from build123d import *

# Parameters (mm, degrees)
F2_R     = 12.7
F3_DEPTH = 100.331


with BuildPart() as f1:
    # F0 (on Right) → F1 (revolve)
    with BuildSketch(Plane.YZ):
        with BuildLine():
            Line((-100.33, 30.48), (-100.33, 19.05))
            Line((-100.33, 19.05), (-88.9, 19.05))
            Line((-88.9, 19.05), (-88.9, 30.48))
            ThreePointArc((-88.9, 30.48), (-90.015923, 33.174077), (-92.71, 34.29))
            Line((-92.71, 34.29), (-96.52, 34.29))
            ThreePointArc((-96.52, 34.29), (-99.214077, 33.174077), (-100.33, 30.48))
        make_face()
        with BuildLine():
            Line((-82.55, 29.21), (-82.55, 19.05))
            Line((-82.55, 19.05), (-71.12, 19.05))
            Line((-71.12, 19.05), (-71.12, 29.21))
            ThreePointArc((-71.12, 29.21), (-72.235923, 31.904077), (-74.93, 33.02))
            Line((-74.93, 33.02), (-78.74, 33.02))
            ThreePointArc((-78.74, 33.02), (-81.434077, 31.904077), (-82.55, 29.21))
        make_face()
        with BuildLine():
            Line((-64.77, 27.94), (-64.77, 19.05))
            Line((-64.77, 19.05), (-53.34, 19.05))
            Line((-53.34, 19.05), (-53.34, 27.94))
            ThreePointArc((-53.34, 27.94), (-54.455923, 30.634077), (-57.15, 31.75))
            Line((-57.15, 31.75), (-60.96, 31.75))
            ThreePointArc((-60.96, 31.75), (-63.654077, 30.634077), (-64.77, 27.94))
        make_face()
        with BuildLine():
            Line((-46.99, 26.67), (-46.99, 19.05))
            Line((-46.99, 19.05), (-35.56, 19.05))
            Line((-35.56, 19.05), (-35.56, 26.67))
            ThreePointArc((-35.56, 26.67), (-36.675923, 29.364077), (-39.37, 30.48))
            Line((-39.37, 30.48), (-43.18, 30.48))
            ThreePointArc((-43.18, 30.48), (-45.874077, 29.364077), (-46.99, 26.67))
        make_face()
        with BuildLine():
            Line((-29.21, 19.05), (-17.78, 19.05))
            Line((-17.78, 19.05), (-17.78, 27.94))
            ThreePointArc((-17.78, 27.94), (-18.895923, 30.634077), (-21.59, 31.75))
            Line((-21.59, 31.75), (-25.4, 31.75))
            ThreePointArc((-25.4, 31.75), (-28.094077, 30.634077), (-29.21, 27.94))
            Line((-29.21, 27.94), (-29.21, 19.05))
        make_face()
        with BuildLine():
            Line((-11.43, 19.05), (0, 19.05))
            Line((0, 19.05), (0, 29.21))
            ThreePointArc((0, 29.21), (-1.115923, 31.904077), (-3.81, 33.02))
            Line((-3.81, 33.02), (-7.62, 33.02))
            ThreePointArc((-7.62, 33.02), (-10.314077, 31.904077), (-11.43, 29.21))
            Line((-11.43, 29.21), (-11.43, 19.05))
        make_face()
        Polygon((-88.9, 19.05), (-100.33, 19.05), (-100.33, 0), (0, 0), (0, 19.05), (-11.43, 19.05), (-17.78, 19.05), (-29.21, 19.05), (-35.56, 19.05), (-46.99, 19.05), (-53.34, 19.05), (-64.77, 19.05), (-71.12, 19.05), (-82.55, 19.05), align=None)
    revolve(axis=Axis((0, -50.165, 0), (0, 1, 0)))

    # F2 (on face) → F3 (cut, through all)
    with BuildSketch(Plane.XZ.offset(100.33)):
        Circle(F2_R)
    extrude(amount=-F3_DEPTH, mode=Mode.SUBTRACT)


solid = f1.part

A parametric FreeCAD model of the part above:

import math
import FreeCAD as App
import Part
import Sketcher
Q = App.Units.Quantity

doc = App.newDocument("Part")
body = doc.addObject("PartDesign::Body", "Body")

sketch1 = body.newObject("Sketcher::SketchObject", "Sketch")
sketch1.AttachmentSupport = (doc.getObject("YZ_Plane"), [""])
sketch1.MapMode = "FlatFace"
sketch1.addGeometry([
    Part.LineSegment(App.Vector(-100.3, 30.5, 0), App.Vector(-100.3, 0, 0)),
    Part.LineSegment(App.Vector(-100.3, 0, 0), App.Vector(0, 0, 0)),
    Part.LineSegment(App.Vector(0, 0, 0), App.Vector(0, 29.2, 0)),
    Part.ArcOfCircle(Part.Circle(App.Vector(-3.8, 29.2, 0), App.Vector(0, 0, 1), 3.8), math.radians(0), math.radians(90)),
    Part.LineSegment(App.Vector(-3.8, 33, 0), App.Vector(-7.6, 33, 0)),
    Part.ArcOfCircle(Part.Circle(App.Vector(-7.6, 29.2, 0), App.Vector(0, 0, 1), 3.8), math.radians(90), math.radians(180)),
    Part.LineSegment(App.Vector(-11.4, 29.2, 0), App.Vector(-11.4, 19.1, 0)),
    Part.LineSegment(App.Vector(-11.4, 19.1, 0), App.Vector(-17.8, 19.1, 0)),
    Part.LineSegment(App.Vector(-17.8, 19.1, 0), App.Vector(-17.8, 27.9, 0)),
    Part.ArcOfCircle(Part.Circle(App.Vector(-21.6, 27.9, 0), App.Vector(0, 0, 1), 3.8), math.radians(0), math.radians(90)),
    Part.LineSegment(App.Vector(-21.6, 31.8, 0), App.Vector(-25.4, 31.8, 0)),
    Part.ArcOfCircle(Part.Circle(App.Vector(-25.4, 27.9, 0), App.Vector(0, 0, 1), 3.8), math.radians(90), math.radians(180)),
    Part.LineSegment(App.Vector(-29.2, 27.9, 0), App.Vector(-29.2, 19.1, 0)),
    Part.LineSegment(App.Vector(-29.2, 19.1, 0), App.Vector(-35.6, 19.1, 0)),
    Part.LineSegment(App.Vector(-35.6, 19.1, 0), App.Vector(-35.6, 26.7, 0)),
    Part.ArcOfCircle(Part.Circle(App.Vector(-39.4, 26.7, 0), App.Vector(0, 0, 1), 3.8), math.radians(0), math.radians(90)),
    Part.LineSegment(App.Vector(-39.4, 30.5, 0), App.Vector(-43.2, 30.5, 0)),
    Part.ArcOfCircle(Part.Circle(App.Vector(-43.2, 26.7, 0), App.Vector(0, 0, 1), 3.8), math.radians(90), math.radians(180)),
    Part.LineSegment(App.Vector(-47, 26.7, 0), App.Vector(-47, 19.1, 0)),
    Part.LineSegment(App.Vector(-47, 19.1, 0), App.Vector(-53.3, 19.1, 0)),
    Part.LineSegment(App.Vector(-53.3, 19.1, 0), App.Vector(-53.3, 27.9, 0)),
    Part.ArcOfCircle(Part.Circle(App.Vector(-57.1, 27.9, 0), App.Vector(0, 0, 1), 3.8), math.radians(0), math.radians(90)),
    Part.LineSegment(App.Vector(-57.1, 31.8, 0), App.Vector(-61, 31.8, 0)),
    Part.ArcOfCircle(Part.Circle(App.Vector(-61, 27.9, 0), App.Vector(0, 0, 1), 3.8), math.radians(90), math.radians(180)),
    Part.LineSegment(App.Vector(-64.8, 27.9, 0), App.Vector(-64.8, 19.1, 0)),
    Part.LineSegment(App.Vector(-64.8, 19.1, 0), App.Vector(-71.1, 19.1, 0)),
    Part.LineSegment(App.Vector(-71.1, 19.1, 0), App.Vector(-71.1, 29.2, 0)),
    Part.ArcOfCircle(Part.Circle(App.Vector(-74.9, 29.2, 0), App.Vector(0, 0, 1), 3.8), math.radians(0), math.radians(90)),
    Part.LineSegment(App.Vector(-74.9, 33, 0), App.Vector(-78.7, 33, 0)),
    Part.ArcOfCircle(Part.Circle(App.Vector(-78.7, 29.2, 0), App.Vector(0, 0, 1), 3.8), math.radians(90), math.radians(180)),
    Part.LineSegment(App.Vector(-82.5, 29.2, 0), App.Vector(-82.5, 19.1, 0)),
    Part.LineSegment(App.Vector(-82.5, 19.1, 0), App.Vector(-88.9, 19.1, 0)),
    Part.LineSegment(App.Vector(-88.9, 19.1, 0), App.Vector(-88.9, 30.5, 0)),
    Part.ArcOfCircle(Part.Circle(App.Vector(-92.7, 30.5, 0), App.Vector(0, 0, 1), 3.8), math.radians(0), math.radians(90)),
    Part.LineSegment(App.Vector(-92.7, 34.3, 0), App.Vector(-96.5, 34.3, 0)),
    Part.ArcOfCircle(Part.Circle(App.Vector(-96.5, 30.5, 0), App.Vector(0, 0, 1), 3.8), math.radians(90), math.radians(180)),
], False)
sketch1.addConstraint([
    Sketcher.Constraint("Coincident", 0, 2, 1, 1),
    Sketcher.Constraint("Coincident", 1, 2, 2, 1),
    Sketcher.Constraint("Tangent", 2, 2, 3, 1),
    Sketcher.Constraint("Tangent", 3, 2, 4, 1),
    Sketcher.Constraint("Tangent", 4, 2, 5, 1),
    Sketcher.Constraint("Tangent", 5, 2, 6, 1),
    Sketcher.Constraint("Coincident", 6, 2, 7, 1),
    Sketcher.Constraint("Coincident", 7, 2, 8, 1),
    Sketcher.Constraint("Tangent", 8, 2, 9, 1),
    Sketcher.Constraint("Tangent", 9, 2, 10, 1),
    Sketcher.Constraint("Tangent", 10, 2, 11, 1),
    Sketcher.Constraint("Tangent", 11, 2, 12, 1),
    Sketcher.Constraint("Coincident", 12, 2, 13, 1),
    Sketcher.Constraint("Coincident", 13, 2, 14, 1),
    Sketcher.Constraint("Tangent", 14, 2, 15, 1),
    Sketcher.Constraint("Tangent", 15, 2, 16, 1),
    Sketcher.Constraint("Tangent", 16, 2, 17, 1),
    Sketcher.Constraint("Tangent", 17, 2, 18, 1),
    Sketcher.Constraint("Coincident", 18, 2, 19, 1),
    Sketcher.Constraint("Coincident", 19, 2, 20, 1),
    Sketcher.Constraint("Tangent", 20, 2, 21, 1),
    Sketcher.Constraint("Tangent", 21, 2, 22, 1),
    Sketcher.Constraint("Tangent", 22, 2, 23, 1),
    Sketcher.Constraint("Tangent", 23, 2, 24, 1),
    Sketcher.Constraint("Coincident", 24, 2, 25, 1),
    Sketcher.Constraint("Coincident", 25, 2, 26, 1),
    Sketcher.Constraint("Tangent", 26, 2, 27, 1),
    Sketcher.Constraint("Tangent", 27, 2, 28, 1),
    Sketcher.Constraint("Tangent", 28, 2, 29, 1),
    Sketcher.Constraint("Tangent", 29, 2, 30, 1),
    Sketcher.Constraint("Coincident", 30, 2, 31, 1),
    Sketcher.Constraint("Coincident", 31, 2, 32, 1),
    Sketcher.Constraint("Tangent", 32, 2, 33, 1),
    Sketcher.Constraint("Tangent", 33, 2, 34, 1),
    Sketcher.Constraint("Tangent", 34, 2, 35, 1),
    Sketcher.Constraint("Tangent", 35, 2, 0, 1),
    Sketcher.Constraint("Vertical", 0),
    Sketcher.Constraint("Horizontal", 1),
    Sketcher.Constraint("Vertical", 2),
    Sketcher.Constraint("Horizontal", 4),
    Sketcher.Constraint("Vertical", 6),
    Sketcher.Constraint("Horizontal", 7),
    Sketcher.Constraint("Vertical", 8),
    Sketcher.Constraint("Horizontal", 10),
    Sketcher.Constraint("Vertical", 12),
    Sketcher.Constraint("Horizontal", 13),
    Sketcher.Constraint("Vertical", 14),
    Sketcher.Constraint("Horizontal", 16),
    Sketcher.Constraint("Vertical", 18),
    Sketcher.Constraint("Horizontal", 19),
    Sketcher.Constraint("Vertical", 20),
    Sketcher.Constraint("Horizontal", 22),
    Sketcher.Constraint("Vertical", 24),
    Sketcher.Constraint("Horizontal", 25),
    Sketcher.Constraint("Vertical", 26),
    Sketcher.Constraint("Horizontal", 28),
    Sketcher.Constraint("Vertical", 30),
    Sketcher.Constraint("Horizontal", 31),
    Sketcher.Constraint("Vertical", 32),
    Sketcher.Constraint("Horizontal", 34),
    Sketcher.Constraint("Coincident", 1, 2, -1, 1),
    Sketcher.Constraint("Equal", 3, 5),
    Sketcher.Constraint("Equal", 5, 9),
    Sketcher.Constraint("Equal", 9, 11),
    Sketcher.Constraint("Equal", 11, 15),
    Sketcher.Constraint("Equal", 15, 17),
    Sketcher.Constraint("Equal", 17, 21),
    Sketcher.Constraint("Equal", 21, 23),
    Sketcher.Constraint("Equal", 23, 27),
    Sketcher.Constraint("Equal", 27, 29),
    Sketcher.Constraint("Equal", 29, 33),
    Sketcher.Constraint("Equal", 33, 35),
    Sketcher.Constraint("Horizontal", 11, 3, 21, 3),
    Sketcher.Constraint("Horizontal", 5, 3, 27, 3),
    Sketcher.Constraint("Horizontal", 7, 2, 12, 2),
    Sketcher.Constraint("Horizontal", 35, 3, 15, 2),
    Sketcher.Constraint("Horizontal", 13, 2, 18, 2),
    Sketcher.Constraint("Horizontal", 19, 2, 24, 2),
    Sketcher.Constraint("Horizontal", 25, 2, 30, 2),
    Sketcher.Constraint("Equal", 4, 10),
    Sketcher.Constraint("Equal", 7, 13),
    Sketcher.Constraint("Equal", 10, 16),
    Sketcher.Constraint("Equal", 13, 19),
    Sketcher.Constraint("Equal", 16, 22),
    Sketcher.Constraint("Equal", 19, 25),
    Sketcher.Constraint("Equal", 22, 28),
    Sketcher.Constraint("Equal", 25, 31),
    Sketcher.Constraint("Equal", 28, 34),
    Sketcher.Constraint("Radius", 3, Q("0.15 in")),
    Sketcher.Constraint("DistanceY", 0, 2, 0, 1, Q("1.2 in")),
    Sketcher.Constraint("DistanceY", 6, 2, 6, 1, Q("0.4 in")),
    Sketcher.Constraint("DistanceY", 14, 1, 14, 2, Q("0.3 in")),
    Sketcher.Constraint("DistanceX", 11, 3, -1, 1, Q("1 in")),
    Sketcher.Constraint("DistanceX", 1, 1, 1, 2, Q("3.95 in")),
    Sketcher.Constraint("DistanceY", 8, 1, 8, 2, Q("0.35 in")),
])
revolution = body.newObject("PartDesign::Revolution", "Revolution")
revolution.Profile = sketch1
revolution.ReferenceAxis = (sketch1, ["H_Axis"])
revolution.Angle = 360

sketch2 = body.newObject("Sketcher::SketchObject", "Sketch001")
sketch2.AttachmentSupport = (doc.getObject("XZ_Plane"), [""])
sketch2.MapMode = "FlatFace"
sketch2.AttachmentOffset = App.Placement(App.Vector(0, 0, 3.95 * 25.4), App.Rotation())
sketch2.addGeometry(Part.Circle(App.Vector(0, 0, 0), App.Vector(0, 0, 1), 13), False)
sketch2.addConstraint([
    Sketcher.Constraint("Coincident", 0, 3, -1, 1),
    Sketcher.Constraint("Diameter", 0, Q("1 in")),
])
pocket1 = body.newObject("PartDesign::Pocket", "Pocket")
pocket1.Profile = sketch2
pocket1.Type = "ThroughAll"

doc.recompute()
